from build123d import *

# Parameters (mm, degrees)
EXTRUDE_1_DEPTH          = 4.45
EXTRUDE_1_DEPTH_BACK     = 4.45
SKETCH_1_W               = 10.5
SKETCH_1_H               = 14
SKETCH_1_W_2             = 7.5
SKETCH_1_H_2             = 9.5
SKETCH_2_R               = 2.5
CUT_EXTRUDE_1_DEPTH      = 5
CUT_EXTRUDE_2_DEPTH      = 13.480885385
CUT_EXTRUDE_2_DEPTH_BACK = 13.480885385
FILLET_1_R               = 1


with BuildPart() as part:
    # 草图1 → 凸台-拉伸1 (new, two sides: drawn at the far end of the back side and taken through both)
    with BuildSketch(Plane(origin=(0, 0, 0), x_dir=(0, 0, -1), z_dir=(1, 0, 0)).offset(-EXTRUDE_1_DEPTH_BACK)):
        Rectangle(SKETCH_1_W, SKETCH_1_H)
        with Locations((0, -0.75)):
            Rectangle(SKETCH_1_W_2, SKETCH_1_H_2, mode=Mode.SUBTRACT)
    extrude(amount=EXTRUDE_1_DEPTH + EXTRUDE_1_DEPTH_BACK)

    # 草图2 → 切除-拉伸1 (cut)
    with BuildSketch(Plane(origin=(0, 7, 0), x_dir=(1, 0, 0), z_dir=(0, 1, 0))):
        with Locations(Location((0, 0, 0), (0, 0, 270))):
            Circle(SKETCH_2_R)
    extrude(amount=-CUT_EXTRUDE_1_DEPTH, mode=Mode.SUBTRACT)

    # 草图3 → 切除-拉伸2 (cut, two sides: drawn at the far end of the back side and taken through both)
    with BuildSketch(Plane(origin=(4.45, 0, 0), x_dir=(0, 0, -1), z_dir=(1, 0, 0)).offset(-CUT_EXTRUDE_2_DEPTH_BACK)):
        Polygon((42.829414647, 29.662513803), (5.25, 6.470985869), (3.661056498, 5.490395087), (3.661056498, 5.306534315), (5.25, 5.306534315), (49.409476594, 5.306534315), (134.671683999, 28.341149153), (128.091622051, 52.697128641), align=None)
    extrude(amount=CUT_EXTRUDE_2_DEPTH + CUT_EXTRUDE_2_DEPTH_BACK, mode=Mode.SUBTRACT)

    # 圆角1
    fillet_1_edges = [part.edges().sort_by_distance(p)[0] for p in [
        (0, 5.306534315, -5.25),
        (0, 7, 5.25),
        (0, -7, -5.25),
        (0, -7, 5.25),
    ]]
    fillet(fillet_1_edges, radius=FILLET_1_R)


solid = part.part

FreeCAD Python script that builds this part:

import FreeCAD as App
import Part
import Sketcher

V = App.Vector


def edges_at(feature, points):
    """Names of the edges that pass closest to the given points."""
    edges = feature.Shape.Edges
    near = lambda p: min(range(len(edges)), key=lambda i: edges[i].distToShape(Part.Vertex(*p))[0])
    return sorted({f"Edge{near(p) + 1}" for p in points})


def add_polygon(sketch, points):
    """Adds a closed chain of lines whose ends are joined by coincident constraints."""
    first, n = sketch.GeometryCount, len(points)
    for a, b in zip(points, points[1:] + points[:1]):
        sketch.addGeometry(Part.LineSegment(App.Vector(*a, 0), App.Vector(*b, 0)), False)
    for i in range(n):
        sketch.addConstraint(Sketcher.Constraint("Coincident", first + i, 2, first + (i + 1) % n, 1))

doc = App.newDocument("Part")
body = doc.addObject("PartDesign::Body", "Body")

# Sketch on YZ plane
sketch1 = body.newObject("Sketcher::SketchObject", "Sketch")
sketch1.AttachmentSupport = (doc.getObject("YZ_Plane"), [""])
sketch1.MapMode = "FlatFace"
add_polygon(sketch1, [(7, 5.25), (-7, 5.25), (-7, -5.25), (7, -5.25)])  # lines 0-3
add_polygon(sketch1, [(-5.5, -3.75), (-5.5, 3.75), (4, 3.75), (4, -3.75)])  # lines 4-7
sketch1.addConstraint([
    Sketcher.Constraint("Horizontal", 0),
    Sketcher.Constraint("Vertical", 1),
    Sketcher.Constraint("Horizontal", 2),
    Sketcher.Constraint("Vertical", 3),
    Sketcher.Constraint("Vertical", 4),
    Sketcher.Constraint("Horizontal", 5),
    Sketcher.Constraint("Vertical", 6),
    Sketcher.Constraint("Horizontal", 7),
    Sketcher.Constraint("Symmetric", 0, 2, 2, 2, -1, 1),
    Sketcher.Constraint("DistanceX", 0, 2, 0, 1, 14.0),
    Sketcher.Constraint("DistanceX", 5, 1, 5, 2, 9.5),
    Sketcher.Constraint("DistanceY", 1, 2, 1, 1, 10.5),
    Sketcher.Constraint("DistanceY", 4, 1, 4, 2, 7.5),
    Sketcher.Constraint("DistanceX", -1, 1, 5, 2, 4.0),
    Sketcher.Constraint("DistanceY", 1, 2, 4, 2, 9.0),
])
pad1 = body.newObject("PartDesign::Pad", "Pad")
pad1.Profile = sketch1
pad1.Type = "TwoLengths"
pad1.Length = 4.45
pad1.Length2 = 4.45

# Sketch on XZ plane
sketch2 = body.newObject("Sketcher::SketchObject", "Sketch001")
sketch2.AttachmentSupport = (doc.getObject("XZ_Plane"), [""])
sketch2.MapMode = "FlatFace"
sketch2.AttachmentOffset = App.Placement(V(0, 0, -7), App.Rotation())
sketch2.addGeometry(Part.Circle(V(0, 0, 0), V(0, 0, 1), 2.5), False)
sketch2.addConstraint([
    Sketcher.Constraint("Coincident", 0, 3, -1, 1),
    Sketcher.Constraint("Diameter", 0, 5.0),
])
pocket1 = body.newObject("PartDesign::Pocket", "Pocket")
pocket1.Profile = sketch2
pocket1.Length = 5
pocket1.Reversed = True

# Sketch on YZ plane
sketch3 = body.newObject("Sketcher::SketchObject", "Sketch002")
sketch3.AttachmentSupport = (doc.getObject("YZ_Plane"), [""])
sketch3.MapMode = "FlatFace"
sketch3.AttachmentOffset = App.Placement(V(0, 0, 4.45), App.Rotation())
add_polygon(sketch3, [(29.662514, -42.829415), (6.470986, -5.25), (5.490395, -3.661056), (5.306534, -3.661056), (5.306534, -49.409477), (28.341149, -134.671684), (52.697129, -128.091622)])  # lines 0-6
sketch3.addConstraint([
    Sketcher.Constraint("Horizontal", 2),
    Sketcher.Constraint("Vertical", 3),
    Sketcher.Constraint("Parallel", 0, 1),
    Sketcher.Constraint("Perpendicular", 4, 5),
    Sketcher.Constraint("Perpendicular", 5, 6),
    Sketcher.Constraint("Equal", 4, 6),
    Sketcher.Constraint("DistanceY", 0, 2, -1, 1, 5.25),
    Sketcher.Constraint("DistanceX", 2, 2, 2, 1, 0.183861),
    Sketcher.Constraint("DistanceY", 3, 2, 3, 1, 45.74842),
    Sketcher.Constraint("Distance", 5, 25.229169),
    Sketcher.Constraint("DistanceX", -1, 1, 4, 2, 28.341149),
    Sketcher.Constraint("DistanceX", -1, 1, 5, 2, 52.697129),
    Sketcher.Constraint("DistanceX", 1, 2, 0, 2, 0.980591),
    Sketcher.Constraint("Distance", 4, 88.318953),
])
pocket2 = body.newObject("PartDesign::Pocket", "Pocket001")
pocket2.Profile = sketch3
pocket2.Type = "ThroughAll"
pocket2.Midplane = True
doc.recompute()

fillet = body.newObject("PartDesign::Fillet", "Fillet")
fillet.Base = (pocket2, edges_at(pocket2, [
    (0, 5.307, -5.25),
    (0, 7, 5.25),
    (0, -7, -5.25),
    (0, -7, 5.25),
]))
fillet.Radius = 1

doc.recompute()
